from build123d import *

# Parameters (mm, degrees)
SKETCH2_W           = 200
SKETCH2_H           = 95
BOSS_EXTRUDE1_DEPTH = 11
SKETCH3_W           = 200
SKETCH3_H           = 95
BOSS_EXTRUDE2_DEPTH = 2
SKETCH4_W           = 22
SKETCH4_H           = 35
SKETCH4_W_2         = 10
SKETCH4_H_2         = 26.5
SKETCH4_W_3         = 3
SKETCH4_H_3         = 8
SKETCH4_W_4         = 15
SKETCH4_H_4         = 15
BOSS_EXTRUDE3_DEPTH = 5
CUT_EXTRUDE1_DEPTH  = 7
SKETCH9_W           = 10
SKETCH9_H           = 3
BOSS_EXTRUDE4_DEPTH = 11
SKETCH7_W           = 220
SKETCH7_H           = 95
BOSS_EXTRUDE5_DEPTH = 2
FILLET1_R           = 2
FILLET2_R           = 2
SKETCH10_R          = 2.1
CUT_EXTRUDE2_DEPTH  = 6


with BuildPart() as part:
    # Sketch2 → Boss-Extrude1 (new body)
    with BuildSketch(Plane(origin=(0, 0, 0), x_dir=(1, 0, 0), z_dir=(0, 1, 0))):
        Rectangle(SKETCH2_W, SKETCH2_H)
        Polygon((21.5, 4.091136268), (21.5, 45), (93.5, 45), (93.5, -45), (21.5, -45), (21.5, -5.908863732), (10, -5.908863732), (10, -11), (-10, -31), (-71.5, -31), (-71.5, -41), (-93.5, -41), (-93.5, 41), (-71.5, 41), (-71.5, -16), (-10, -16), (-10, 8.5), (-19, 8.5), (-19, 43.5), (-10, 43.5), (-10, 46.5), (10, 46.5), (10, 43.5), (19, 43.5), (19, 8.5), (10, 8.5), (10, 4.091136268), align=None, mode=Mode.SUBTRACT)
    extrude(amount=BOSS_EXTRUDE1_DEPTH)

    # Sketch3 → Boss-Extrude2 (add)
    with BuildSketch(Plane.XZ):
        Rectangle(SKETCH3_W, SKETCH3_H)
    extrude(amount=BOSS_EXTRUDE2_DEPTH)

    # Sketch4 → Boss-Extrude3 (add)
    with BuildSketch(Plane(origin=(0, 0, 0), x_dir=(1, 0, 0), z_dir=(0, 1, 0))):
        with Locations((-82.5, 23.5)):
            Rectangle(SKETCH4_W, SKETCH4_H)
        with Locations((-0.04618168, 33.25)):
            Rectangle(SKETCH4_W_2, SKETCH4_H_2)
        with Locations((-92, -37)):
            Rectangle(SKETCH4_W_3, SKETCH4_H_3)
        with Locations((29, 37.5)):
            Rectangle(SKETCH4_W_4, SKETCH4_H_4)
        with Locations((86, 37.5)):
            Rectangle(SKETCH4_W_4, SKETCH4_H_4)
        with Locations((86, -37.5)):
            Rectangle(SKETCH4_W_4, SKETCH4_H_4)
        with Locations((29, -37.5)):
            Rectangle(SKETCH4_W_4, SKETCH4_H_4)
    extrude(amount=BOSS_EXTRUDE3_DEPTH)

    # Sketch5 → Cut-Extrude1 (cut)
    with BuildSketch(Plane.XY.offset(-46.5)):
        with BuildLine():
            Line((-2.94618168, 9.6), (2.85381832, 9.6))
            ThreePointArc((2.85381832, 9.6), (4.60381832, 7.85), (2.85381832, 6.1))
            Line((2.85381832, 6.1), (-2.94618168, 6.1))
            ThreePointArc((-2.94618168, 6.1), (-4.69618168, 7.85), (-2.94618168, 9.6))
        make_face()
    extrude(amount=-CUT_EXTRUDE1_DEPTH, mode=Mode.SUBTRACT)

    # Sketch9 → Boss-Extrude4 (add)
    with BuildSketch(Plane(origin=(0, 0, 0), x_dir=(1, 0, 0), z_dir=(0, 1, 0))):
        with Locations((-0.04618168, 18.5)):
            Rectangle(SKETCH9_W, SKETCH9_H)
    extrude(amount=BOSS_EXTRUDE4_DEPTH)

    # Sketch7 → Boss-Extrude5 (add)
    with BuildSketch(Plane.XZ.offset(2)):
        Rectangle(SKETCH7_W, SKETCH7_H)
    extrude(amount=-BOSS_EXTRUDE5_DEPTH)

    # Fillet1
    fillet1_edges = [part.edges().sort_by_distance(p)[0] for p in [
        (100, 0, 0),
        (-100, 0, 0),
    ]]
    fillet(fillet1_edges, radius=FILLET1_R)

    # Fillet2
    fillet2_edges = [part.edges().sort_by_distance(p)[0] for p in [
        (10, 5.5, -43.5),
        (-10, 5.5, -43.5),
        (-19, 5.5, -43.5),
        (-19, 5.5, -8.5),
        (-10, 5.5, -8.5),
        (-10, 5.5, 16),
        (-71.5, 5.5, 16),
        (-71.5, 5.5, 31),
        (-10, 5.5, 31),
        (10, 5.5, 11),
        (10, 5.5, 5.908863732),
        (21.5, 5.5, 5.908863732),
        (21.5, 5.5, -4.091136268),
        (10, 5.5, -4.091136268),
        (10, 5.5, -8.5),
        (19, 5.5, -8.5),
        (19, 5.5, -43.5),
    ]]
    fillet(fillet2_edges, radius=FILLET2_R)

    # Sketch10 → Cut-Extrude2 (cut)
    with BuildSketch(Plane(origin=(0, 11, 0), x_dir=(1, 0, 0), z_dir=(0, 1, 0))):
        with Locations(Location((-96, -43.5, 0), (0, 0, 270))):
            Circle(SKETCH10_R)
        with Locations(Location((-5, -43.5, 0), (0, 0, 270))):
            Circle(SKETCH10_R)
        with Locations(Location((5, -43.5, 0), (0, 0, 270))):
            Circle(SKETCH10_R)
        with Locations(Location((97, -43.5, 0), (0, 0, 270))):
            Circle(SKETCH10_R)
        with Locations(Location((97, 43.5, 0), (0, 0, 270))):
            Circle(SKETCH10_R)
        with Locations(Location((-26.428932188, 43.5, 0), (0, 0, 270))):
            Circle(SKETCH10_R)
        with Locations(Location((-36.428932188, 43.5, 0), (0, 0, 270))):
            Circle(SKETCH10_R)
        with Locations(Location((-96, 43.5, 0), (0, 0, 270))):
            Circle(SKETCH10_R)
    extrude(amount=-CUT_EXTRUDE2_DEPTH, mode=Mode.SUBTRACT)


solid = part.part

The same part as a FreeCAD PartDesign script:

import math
import FreeCAD as App
import Part
import Sketcher
from FreeCAD import Vector
Q = App.Units.Quantity


def edges_at(feature, points):
    """Names of the edges that pass closest to the given points."""
    edges = feature.Shape.Edges
    near = lambda p: min(range(len(edges)), key=lambda i: edges[i].distToShape(Part.Vertex(*p))[0])
    return sorted({f"Edge{near(p) + 1}" for p in points})


def add_polygon(sketch, points):
    """Adds a closed chain of lines whose ends are joined by coincident constraints."""
    first, n = sketch.GeometryCount, len(points)
    for a, b in zip(points, points[1:] + points[:1]):
        sketch.addGeometry(Part.LineSegment(App.Vector(*a, 0), App.Vector(*b, 0)), False)
    for i in range(n):
        sketch.addConstraint(Sketcher.Constraint("Coincident", first + i, 2, first + (i + 1) % n, 1))

doc = App.newDocument("Part")
body = doc.addObject("PartDesign::Body", "Body")

sketch1 = body.newObject("Sketcher::SketchObject", "Sketch")
sketch1.AttachmentSupport = (doc.getObject("XZ_Plane"), [""])
sketch1.MapMode = "FlatFace"
add_polygon(sketch1, [(-100, -47.5), (-100, 47.5), (100, 47.5), (100, -47.5)])
add_polygon(sketch1, [(10, -4.091136), (21.5, -4.091136), (21.5, -45), (93.5, -45), (93.5, 45), (21.5, 45), (21.5, 5.908864), (10, 5.908864), (10, 11), (-10, 31), (-71.5, 31), (-71.5, 41), (-93.5, 41), (-93.5, -41), (-71.5, -41), (-71.5, 16), (-10, 16), (-10, -8.5), (-19, -8.5), (-19, -43.5), (-10, -43.5), (-10, -46.5), (10, -46.5), (10, -43.5), (19, -43.5), (19, -8.5), (10, -8.5)])
sketch1.addConstraint([
    Sketcher.Constraint("Vertical", 0),
    Sketcher.Constraint("Horizontal", 1),
    Sketcher.Constraint("Vertical", 2),
    Sketcher.Constraint("Horizontal", 3),
    Sketcher.Constraint("Horizontal", 4),
    Sketcher.Constraint("Vertical", 5),
    Sketcher.Constraint("Horizontal", 6),
    Sketcher.Constraint("Vertical", 7),
    Sketcher.Constraint("Horizontal", 8),
    Sketcher.Constraint("Vertical", 9),
    Sketcher.Constraint("Horizontal", 10),
    Sketcher.Constraint("Vertical", 11),
    Sketcher.Constraint("Horizontal", 13),
    Sketcher.Constraint("Vertical", 14),
    Sketcher.Constraint("Horizontal", 15),
    Sketcher.Constraint("Vertical", 16),
    Sketcher.Constraint("Horizontal", 17),
    Sketcher.Constraint("Vertical", 18),
    Sketcher.Constraint("Horizontal", 19),
    Sketcher.Constraint("Vertical", 20),
    Sketcher.Constraint("Horizontal", 21),
    Sketcher.Constraint("Vertical", 22),
    Sketcher.Constraint("Horizontal", 23),
    Sketcher.Constraint("Vertical", 24),
    Sketcher.Constraint("Horizontal", 25),
    Sketcher.Constraint("Vertical", 26),
    Sketcher.Constraint("Horizontal", 27),
    Sketcher.Constraint("Vertical", 28),
    Sketcher.Constraint("Horizontal", 29),
    Sketcher.Constraint("Vertical", 30),
    Sketcher.Constraint("Symmetric", 0, 2, 2, 2, -1, 1),
    Sketcher.Constraint("Symmetric", 23, 2, 26, 2, -2),
    Sketcher.Constraint("Symmetric", 21, 2, 28, 2, -2),
    Sketcher.Constraint("Symmetric", 5, 2, 8, 2, -1),
    Sketcher.Constraint("Symmetric", 14, 2, 17, 2, -1),
    Sketcher.Constraint("Vertical", 12, 2, 19, 2),
    Sketcher.Constraint("Vertical", 20, 2, 23, 2),
    Sketcher.Constraint("Vertical", 11, 2, 25, 2),
    Sketcher.Constraint("Vertical", 26, 2, 29, 2),
    Sketcher.Constraint("DistanceX", 1, 1, 1, 2, 200.0),
    Sketcher.Constraint("DistanceX", 6, 1, 6, 2, 72.0),
    Sketcher.Constraint("DistanceX", 15, 2, 15, 1, 22.0),
    Sketcher.Constraint("DistanceX", 21, 2, 21, 1, 9.0),
    Sketcher.Constraint("DistanceX", 25, 1, 25, 2, 20.0),
    Sketcher.Constraint("DistanceY", 0, 1, 0, 2, 95.0),
    Sketcher.Constraint("DistanceY", 7, 1, 7, 2, 90.0),
    Sketcher.Constraint("DistanceY", 14, 1, 14, 2, 10.0),
    Sketcher.Constraint("DistanceY", 16, 2, 16, 1, 82.0),
    Sketcher.Constraint("DistanceY", 18, 1, 18, 2, 57.0),
    Sketcher.Constraint("DistanceY", 22, 2, 22, 1, 35.0),
    Sketcher.Constraint("DistanceY", 24, 2, 24, 1, 3.0),
    Sketcher.Constraint("Angle", 12, Q("135 deg")),
    Sketcher.Constraint("DistanceX", 4, 1, 4, 2, 11.5),
    Sketcher.Constraint("DistanceX", 13, 2, 13, 1, 61.5),
    Sketcher.Constraint("DistanceY", 20, 2, 20, 1, 24.5),
    Sketcher.Constraint("DistanceY", 4, 2, 9, 2, 10.0),
    Sketcher.Constraint("DistanceY", 5, 2, 5, 1, 40.908864),
])
pad1 = body.newObject("PartDesign::Pad", "Pad")
pad1.Profile = sketch1
pad1.Length = 11
pad1.Reversed = True

sketch2 = body.newObject("Sketcher::SketchObject", "Sketch001")
sketch2.AttachmentSupport = (doc.getObject("XZ_Plane"), [""])
sketch2.MapMode = "FlatFace"
add_polygon(sketch2, [(-100, 47.5), (-100, -47.5), (100, -47.5), (100, 47.5)])
sketch2.addConstraint([
    Sketcher.Constraint("Vertical", 0),
    Sketcher.Constraint("Horizontal", 1),
    Sketcher.Constraint("Vertical", 2),
    Sketcher.Constraint("Horizontal", 3),
    Sketcher.Constraint("Symmetric", 0, 2, 2, 2, -1, 1),
    Sketcher.Constraint("DistanceX", 1, 1, 1, 2, 200.0),
    Sketcher.Constraint("DistanceY", 0, 2, 0, 1, 95.0),
])
pad2 = body.newObject("PartDesign::Pad", "Pad001")
pad2.Profile = sketch2
pad2.Length = 2

sketch3 = body.newObject("Sketcher::SketchObject", "Sketch002")
sketch3.AttachmentSupport = (doc.getObject("XZ_Plane"), [""])
sketch3.MapMode = "FlatFace"
add_polygon(sketch3, [(-93.5, -41), (-93.5, -6), (-71.5, -6), (-71.5, -41)])
add_polygon(sketch3, [(-5.046182, -46.5), (-5.046182, -20), (4.953818, -20), (4.953818, -46.5)])
add_polygon(sketch3, [(-93.5, 33), (-93.5, 41), (-90.5, 41), (-90.5, 33)])
add_polygon(sketch3, [(21.5, -45), (21.5, -30), (36.5, -30), (36.5, -45)])
add_polygon(sketch3, [(78.5, -45), (78.5, -30), (93.5, -30), (93.5, -45)])
add_polygon(sketch3, [(78.5, 30), (78.5, 45), (93.5, 45), (93.5, 30)])
add_polygon(sketch3, [(21.5, 30), (21.5, 45), (36.5, 45), (36.5, 30)])
sketch3.addConstraint([
    Sketcher.Constraint("Vertical", 0),
    Sketcher.Constraint("Horizontal", 1),
    Sketcher.Constraint("Vertical", 2),
    Sketcher.Constraint("Horizontal", 3),
    Sketcher.Constraint("Vertical", 4),
    Sketcher.Constraint("Horizontal", 5),
    Sketcher.Constraint("Vertical", 6),
    Sketcher.Constraint("Horizontal", 7),
    Sketcher.Constraint("Vertical", 8),
    Sketcher.Constraint("Horizontal", 9),
    Sketcher.Constraint("Vertical", 10),
    Sketcher.Constraint("Horizontal", 11),
    Sketcher.Constraint("Vertical", 12),
    Sketcher.Constraint("Horizontal", 13),
    Sketcher.Constraint("Vertical", 14),
    Sketcher.Constraint("Horizontal", 15),
    Sketcher.Constraint("Vertical", 16),
    Sketcher.Constraint("Horizontal", 17),
    Sketcher.Constraint("Vertical", 18),
    Sketcher.Constraint("Horizontal", 19),
    Sketcher.Constraint("Vertical", 20),
    Sketcher.Constraint("Horizontal", 21),
    Sketcher.Constraint("Vertical", 22),
    Sketcher.Constraint("Horizontal", 23),
    Sketcher.Constraint("Vertical", 24),
    Sketcher.Constraint("Horizontal", 25),
    Sketcher.Constraint("Vertical", 26),
    Sketcher.Constraint("Horizontal", 27),
    Sketcher.Constraint("Symmetric", 3, 2, 8, 2, -1),
    Sketcher.Constraint("Symmetric", 19, 2, 20, 2, -1),
    Sketcher.Constraint("Symmetric", 17, 2, 22, 2, -1),
    Sketcher.Constraint("Symmetric", 15, 2, 24, 2, -1),
    Sketcher.Constraint("Symmetric", 13, 2, 26, 2, -1),
    Sketcher.Constraint("Horizontal", 13, 2, 16, 2),
    Sketcher.Constraint("Horizontal", 15, 2, 18, 2),
    Sketcher.Constraint("Equal", 15, 17),
    Sketcher.Constraint("Equal", 27, 12),
    Sketcher.Constraint("DistanceX", 1, 1, 1, 2, 22.0),
    Sketcher.Constraint("DistanceX", 5, 1, 5, 2, 10.0),
    Sketcher.Constraint("DistanceX", 9, 1, 9, 2, 3.0),
    Sketcher.Constraint("DistanceX", 13, 1, 13, 2, 15.0),
    Sketcher.Constraint("DistanceY", 0, 1, 0, 2, 35.0),
    Sketcher.Constraint("DistanceY", 8, 1, 8, 2, 8.0),
    Sketcher.Constraint("DistanceY", 4, 1, 4, 2, 26.5),
    Sketcher.Constraint("DistanceY", 0, 2, -1, 1, 6.0),
    Sketcher.Constraint("DistanceY", 4, 2, -1, 1, 20.0),
    Sketcher.Constraint("DistanceY", 12, 2, -1, 1, 30.0),
    Sketcher.Constraint("DistanceX", 2, 2, 12, 2, 93.0),
    Sketcher.Constraint("DistanceX", 13, 2, 16, 2, 42.0),
    Sketcher.Constraint("DistanceX", 0, 2, -1, 1, 93.5),
    Sketcher.Constraint("DistanceX", 4, 2, -1, 1, 5.046182),
])
pad3 = body.newObject("PartDesign::Pad", "Pad002")
pad3.Profile = sketch3
pad3.Length = 5
pad3.Reversed = True

sketch4 = body.newObject("Sketcher::SketchObject", "Sketch003")
sketch4.AttachmentSupport = (doc.getObject("XY_Plane"), [""])
sketch4.MapMode = "FlatFace"
sketch4.AttachmentOffset = App.Placement(Vector(0, 0, -46.5), App.Rotation())
sketch4.addGeometry([
    Part.LineSegment(Vector(2.853818, 9.6, 0), Vector(-2.946182, 9.6, 0)),
    Part.ArcOfCircle(Part.Circle(Vector(-2.946182, 7.85, 0), Vector(0, 0, 1), 1.75), math.radians(90), math.radians(270)),
    Part.LineSegment(Vector(-2.946182, 6.1, 0), Vector(2.853818, 6.1, 0)),
    Part.ArcOfCircle(Part.Circle(Vector(2.853818, 7.85, 0), Vector(0, 0, 1), 1.75), math.radians(-90), math.radians(90)),
], False)
sketch4.addConstraint([
    Sketcher.Constraint("Tangent", 0, 2, 1, 1),
    Sketcher.Constraint("Tangent", 1, 2, 2, 1),
    Sketcher.Constraint("Tangent", 2, 2, 3, 1),
    Sketcher.Constraint("Tangent", 3, 2, 0, 1),
    Sketcher.Constraint("Horizontal", 0),
    Sketcher.Constraint("Horizontal", 2),
    Sketcher.Constraint("Radius", 1, 1.75),
    Sketcher.Constraint("DistanceX", 0, 2, 0, 1, 5.8),
    Sketcher.Constraint("DistanceY", -1, 1, 0, 2, 9.6),
    Sketcher.Constraint("DistanceX", 1, 3, -1, 1, 2.946182),
])
pocket1 = body.newObject("PartDesign::Pocket", "Pocket")
pocket1.Profile = sketch4
pocket1.Length = 7

sketch5 = body.newObject("Sketcher::SketchObject", "Sketch004")
sketch5.AttachmentSupport = (doc.getObject("XZ_Plane"), [""])
sketch5.MapMode = "FlatFace"
add_polygon(sketch5, [(-5.046182, -20), (-5.046182, -17), (4.953818, -17), (4.953818, -20)])
sketch5.addConstraint([
    Sketcher.Constraint("Vertical", 0),
    Sketcher.Constraint("Horizontal", 1),
    Sketcher.Constraint("Vertical", 2),
    Sketcher.Constraint("Horizontal", 3),
    Sketcher.Constraint("DistanceX", 1, 1, 1, 2, 10.0),
    Sketcher.Constraint("DistanceY", 0, 1, 0, 2, 3.0),
    Sketcher.Constraint("DistanceY", 0, 2, -1, 1, 17.0),
    Sketcher.Constraint("DistanceX", 0, 2, -1, 1, 5.046182),
])
pad4 = body.newObject("PartDesign::Pad", "Pad003")
pad4.Profile = sketch5
pad4.Length = 11
pad4.Reversed = True

sketch6 = body.newObject("Sketcher::SketchObject", "Sketch005")
sketch6.AttachmentSupport = (doc.getObject("XZ_Plane"), [""])
sketch6.MapMode = "FlatFace"
sketch6.AttachmentOffset = App.Placement(Vector(0, 0, 2), App.Rotation())
add_polygon(sketch6, [(-110, 47.5), (-110, -47.5), (110, -47.5), (110, 47.5)])
sketch6.addConstraint([
    Sketcher.Constraint("Vertical", 0),
    Sketcher.Constraint("Horizontal", 1),
    Sketcher.Constraint("Vertical", 2),
    Sketcher.Constraint("Horizontal", 3),
    Sketcher.Constraint("Symmetric", 0, 2, 2, 2, -1, 1),
    Sketcher.Constraint("DistanceX", 1, 1, 1, 2, 220.0),
    Sketcher.Constraint("DistanceY", 0, 2, 0, 1, 95.0),
])
pad5 = body.newObject("PartDesign::Pad", "Pad004")
pad5.Profile = sketch6
pad5.Length = 2
pad5.Reversed = True
doc.recompute()

fillet = body.newObject("PartDesign::Fillet", "Fillet")
fillet.Base = (pad5, edges_at(pad5, [(100, 0, 0), (-100, 0, 0)]))
fillet.Radius = 2
doc.recompute()

fillet2 = body.newObject("PartDesign::Fillet", "Fillet001")
fillet2.Base = (fillet, edges_at(fillet, [
    (10, 5.5, -43.5),
    (-10, 5.5, -43.5),
    (-19, 5.5, -43.5),
    (-19, 5.5, -8.5),
    (-10, 5.5, -8.5),
    (-10, 5.5, 16),
    (-71.5, 5.5, 16),
    (-71.5, 5.5, 31),
    (-10, 5.5, 31),
    (10, 5.5, 11),
    (10, 5.5, 5.909),
    (21.5, 5.5, 5.909),
    (21.5, 5.5, -4.091),
    (10, 5.5, -4.091),
    (10, 5.5, -8.5),
    (19, 5.5, -8.5),
    (19, 5.5, -43.5),
]))
fillet2.Radius = 2

sketch7 = body.newObject("Sketcher::SketchObject", "Sketch006")
sketch7.AttachmentSupport = (doc.getObject("XZ_Plane"), [""])
sketch7.MapMode = "FlatFace"
sketch7.AttachmentOffset = App.Placement(Vector(0, 0, -11), App.Rotation())
sketch7.addGeometry([
    Part.Circle(Vector(-96, 43.5, 0), Vector(0, 0, 1), 2.1),
    Part.Circle(Vector(-5, 43.5, 0), Vector(0, 0, 1), 2.1),
    Part.Circle(Vector(5, 43.5, 0), Vector(0, 0, 1), 2.1),
    Part.Circle(Vector(97, 43.5, 0), Vector(0, 0, 1), 2.1),
    Part.Circle(Vector(97, -43.5, 0), Vector(0, 0, 1), 2.1),
    Part.Circle(Vector(-26.428932, -43.5, 0), Vector(0, 0, 1), 2.1),
    Part.Circle(Vector(-36.428932, -43.5, 0), Vector(0, 0, 1), 2.1),
    Part.Circle(Vector(-96, -43.5, 0), Vector(0, 0, 1), 2.1),
], False)
sketch7.addConstraint([
    Sketcher.Constraint("Equal", 0, 1),
    Sketcher.Constraint("Equal", 1, 2),
    Sketcher.Constraint("Equal", 2, 3),
    Sketcher.Constraint("Equal", 3, 4),
    Sketcher.Constraint("Equal", 4, 5),
    Sketcher.Constraint("Equal", 5, 6),
    Sketcher.Constraint("Equal", 6, 7),
    Sketcher.Constraint("Symmetric", 1, 3, 2, 3, -2),
    Sketcher.Constraint("Symmetric", 3, 3, 4, 3, -1),
    Sketcher.Constraint("Symmetric", 0, 3, 7, 3, -1),
    Sketcher.Constraint("Horizontal", 0, 3, 1, 3),
    Sketcher.Constraint("Horizontal", 2, 3, 3, 3),
    Sketcher.Constraint("Horizontal", 4, 3, 5, 3),
    Sketcher.Constraint("Horizontal", 5, 3, 6, 3),
    Sketcher.Constraint("Diameter", 0, 4.2),
    Sketcher.Constraint("DistanceX", 0, 3, -1, 1, 96.0),
    Sketcher.Constraint("DistanceX", 1, 3, -1, 1, 5.0),
    Sketcher.Constraint("DistanceX", -1, 1, 3, 3, 97.0),
    Sketcher.Constraint("DistanceY", 4, 3, 3, 3, 87.0),
    Sketcher.Constraint("DistanceX", 6, 3, 5, 3, 10.0),
    Sketcher.Constraint("DistanceX", 5, 3, -1, 1, 26.428932),
])
pocket2 = body.newObject("PartDesign::Pocket", "Pocket001")
pocket2.Profile = sketch7
pocket2.Length = 6
pocket2.Reversed = True

doc.recompute()
